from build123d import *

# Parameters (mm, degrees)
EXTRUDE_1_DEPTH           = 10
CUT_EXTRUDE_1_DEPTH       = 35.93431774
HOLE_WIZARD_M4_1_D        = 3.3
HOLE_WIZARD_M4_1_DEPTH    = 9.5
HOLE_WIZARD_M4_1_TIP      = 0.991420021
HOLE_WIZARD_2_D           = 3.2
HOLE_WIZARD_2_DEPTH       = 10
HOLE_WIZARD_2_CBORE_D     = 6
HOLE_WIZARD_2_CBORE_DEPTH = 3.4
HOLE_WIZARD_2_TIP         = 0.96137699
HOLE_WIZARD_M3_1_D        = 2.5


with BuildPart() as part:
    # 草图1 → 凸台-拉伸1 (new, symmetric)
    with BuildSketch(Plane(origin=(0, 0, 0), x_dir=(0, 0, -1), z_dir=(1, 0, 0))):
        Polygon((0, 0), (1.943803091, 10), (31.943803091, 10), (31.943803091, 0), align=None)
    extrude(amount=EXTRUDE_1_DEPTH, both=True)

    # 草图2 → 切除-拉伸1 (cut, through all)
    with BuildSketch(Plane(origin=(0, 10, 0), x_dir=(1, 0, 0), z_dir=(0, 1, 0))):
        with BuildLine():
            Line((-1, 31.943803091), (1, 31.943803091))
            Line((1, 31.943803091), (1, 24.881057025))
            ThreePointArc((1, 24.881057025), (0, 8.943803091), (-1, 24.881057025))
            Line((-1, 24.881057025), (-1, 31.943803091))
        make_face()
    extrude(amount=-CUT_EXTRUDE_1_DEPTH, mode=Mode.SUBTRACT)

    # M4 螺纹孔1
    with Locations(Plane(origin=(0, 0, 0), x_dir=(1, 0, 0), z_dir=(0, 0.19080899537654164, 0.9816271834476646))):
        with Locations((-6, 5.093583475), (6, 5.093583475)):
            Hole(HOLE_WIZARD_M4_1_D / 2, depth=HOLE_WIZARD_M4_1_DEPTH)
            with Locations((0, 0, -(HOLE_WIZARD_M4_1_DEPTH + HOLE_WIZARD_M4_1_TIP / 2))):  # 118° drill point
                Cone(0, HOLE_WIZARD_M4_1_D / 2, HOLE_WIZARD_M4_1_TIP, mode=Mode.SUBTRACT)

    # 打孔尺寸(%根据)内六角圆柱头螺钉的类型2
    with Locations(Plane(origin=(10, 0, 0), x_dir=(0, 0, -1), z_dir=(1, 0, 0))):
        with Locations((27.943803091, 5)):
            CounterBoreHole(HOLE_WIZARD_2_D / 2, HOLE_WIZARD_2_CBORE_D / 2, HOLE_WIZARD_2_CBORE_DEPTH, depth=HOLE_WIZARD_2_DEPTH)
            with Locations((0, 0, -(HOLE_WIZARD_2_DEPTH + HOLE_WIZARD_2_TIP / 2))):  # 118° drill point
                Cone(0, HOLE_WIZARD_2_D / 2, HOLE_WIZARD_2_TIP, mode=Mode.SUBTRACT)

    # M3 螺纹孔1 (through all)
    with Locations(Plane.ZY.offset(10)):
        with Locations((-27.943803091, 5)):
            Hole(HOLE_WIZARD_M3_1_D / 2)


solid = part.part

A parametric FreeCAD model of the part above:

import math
import FreeCAD as App
import Part
import Sketcher
from FreeCAD import Vector
Q = App.Units.Quantity

doc = App.newDocument("Part")
body = doc.addObject("PartDesign::Body", "Body")

# Sketch on YZ plane
sketch1 = body.newObject("Sketcher::SketchObject", "Sketch")
sketch1.AttachmentSupport = (doc.getObject("YZ_Plane"), [""])
sketch1.MapMode = "FlatFace"
sketch1.addGeometry([
    Part.LineSegment(Vector(10, -2, 0), Vector(0, 0, 0)),
    Part.LineSegment(Vector(0, 0, 0), Vector(0, -32, 0)),
    Part.LineSegment(Vector(0, -32, 0), Vector(10, -32, 0)),
    Part.LineSegment(Vector(10, -32, 0), Vector(10, -2, 0)),
], False)
sketch1.addConstraint([
    Sketcher.Constraint("Coincident", 0, 2, 1, 1),
    Sketcher.Constraint("Coincident", 1, 2, 2, 1),
    Sketcher.Constraint("Coincident", 2, 2, 3, 1),
    Sketcher.Constraint("Coincident", 3, 2, 0, 1),
    Sketcher.Constraint("Vertical", 1),
    Sketcher.Constraint("Horizontal", 2),
    Sketcher.Constraint("Vertical", 3),
    Sketcher.Constraint("Coincident", 0, 2, -1, 1),
    Sketcher.Constraint("DistanceX", 2, 1, 2, 2, 10.0),
    Sketcher.Constraint("DistanceY", 3, 1, 3, 2, 30.0),
    Sketcher.Constraint("Angle", 0, Q("169 deg")),
])
pad1 = body.newObject("PartDesign::Pad", "Pad")
pad1.Profile = sketch1
pad1.Length = 20
pad1.Midplane = True

# Sketch on XZ plane
sketch2 = body.newObject("Sketcher::SketchObject", "Sketch001")
sketch2.AttachmentSupport = (doc.getObject("XZ_Plane"), [""])
sketch2.MapMode = "FlatFace"
sketch2.AttachmentOffset = App.Placement(Vector(0, 0, -10), App.Rotation())
sketch2.addGeometry([
    Part.LineSegment(Vector(1, -31.9, 0), Vector(-1, -31.9, 0)),
    Part.LineSegment(Vector(-1, -31.9, 0), Vector(-1, -24.9, 0)),
    Part.ArcOfCircle(Part.Circle(Vector(0, -16.9, 0), Vector(0, 0, 1), 8), math.radians(-83), math.radians(263)),
    Part.LineSegment(Vector(1, -24.9, 0), Vector(1, -31.9, 0)),
], False)
sketch2.addConstraint([
    Sketcher.Constraint("Coincident", 0, 2, 1, 1),
    Sketcher.Constraint("Coincident", 1, 2, 2, 2),
    Sketcher.Constraint("Coincident", 2, 1, 3, 1),
    Sketcher.Constraint("Coincident", 3, 2, 0, 1),
    Sketcher.Constraint("Horizontal", 0),
    Sketcher.Constraint("Vertical", 1),
    Sketcher.Constraint("Vertical", 3),
    Sketcher.Constraint("Symmetric", 1, 2, 2, 1, -2),
    Sketcher.Constraint("Radius", 2, 8.0),
    Sketcher.Constraint("DistanceX", 0, 2, 0, 1, 2.0),
    Sketcher.Constraint("DistanceY", 0, 2, 2, 3, 15.0),
    Sketcher.Constraint("DistanceY", 2, 3, -1, 1, 16.943803),
])
pocket1 = body.newObject("PartDesign::Pocket", "Pocket")
pocket1.Profile = sketch2
pocket1.Type = "ThroughAll"
pocket1.Reversed = True

# Sketch on an angled plane
sketch3 = body.newObject("Sketcher::SketchObject", "Sketch002")
sketch3.Placement = App.Placement(Vector(0, 0, 0), App.Rotation(Vector(1, 0, 0), Vector(0, 0.981627183, -0.190808995), Vector(0, 0.190808995, 0.981627183), "ZXY"))
sketch3.addGeometry([
    Part.Circle(Vector(-6, 5.1, 0), Vector(0, 0, 1), 1.6),
    Part.Circle(Vector(6, 5.1, 0), Vector(0, 0, 1), 1.6),
], False)
sketch3.addConstraint([
    Sketcher.Constraint("Equal", 0, 1),
    Sketcher.Constraint("Symmetric", 0, 3, 1, 3, -2),
    Sketcher.Constraint("Diameter", 0, 3.3),
    Sketcher.Constraint("DistanceX", 0, 3, -1, 1, 6.0),
    Sketcher.Constraint("DistanceY", -1, 1, 0, 3, 5.093583),
])
doc.recompute()
hole = body.newObject("PartDesign::Hole", "Hole")
hole.Profile = sketch3
hole.ThreadType = "None"
hole.Diameter = 3.3
hole.DepthType = "Dimension"
hole.Depth = 9.5
hole.DrillPoint = "Angled"
hole.DrillPointAngle = 118

# Sketch on YZ plane
sketch4 = body.newObject("Sketcher::SketchObject", "Sketch003")
sketch4.AttachmentSupport = (doc.getObject("YZ_Plane"), [""])
sketch4.MapMode = "FlatFace"
sketch4.AttachmentOffset = App.Placement(Vector(0, 0, 10), App.Rotation())
sketch4.addGeometry(Part.Circle(Vector(5, -27.9, 0), Vector(0, 0, 1), 1.6), False)
sketch4.addConstraint([
    Sketcher.Constraint("Diameter", 0, 3.2),
    Sketcher.Constraint("DistanceX", -1, 1, 0, 3, 5.0),
    Sketcher.Constraint("DistanceY", 0, 3, -1, 1, 27.943803),
])
doc.recompute()
hole2 = body.newObject("PartDesign::Hole", "Hole001")
hole2.Profile = sketch4
hole2.ThreadType = "None"
hole2.Diameter = 3.2
hole2.DepthType = "Dimension"
hole2.Depth = 10
hole2.DrillPoint = "Angled"
hole2.DrillPointAngle = 118
hole2.HoleCutType = "Counterbore"
hole2.HoleCutDiameter = 6
hole2.HoleCutDepth = 3.4

# Sketch on YZ plane
sketch5 = body.newObject("Sketcher::SketchObject", "Sketch004")
sketch5.AttachmentSupport = (doc.getObject("YZ_Plane"), [""])
sketch5.MapMode = "FlatFace"
sketch5.AttachmentOffset = App.Placement(Vector(0, 0, -10), App.Rotation())
sketch5.addGeometry(Part.Circle(Vector(5, -27.9, 0), Vector(0, 0, 1), 1.2), False)
sketch5.addConstraint([
    Sketcher.Constraint("Diameter", 0, 2.5),
    Sketcher.Constraint("DistanceX", -1, 1, 0, 3, 5.0),
    Sketcher.Constraint("DistanceY", 0, 3, -1, 1, 27.943803),
])
doc.recompute()
hole3 = body.newObject("PartDesign::Hole", "Hole002")
hole3.Profile = sketch5
hole3.ThreadType = "None"
hole3.Diameter = 2.5
hole3.DepthType = "ThroughAll"
hole3.Reversed = True

doc.recompute()
